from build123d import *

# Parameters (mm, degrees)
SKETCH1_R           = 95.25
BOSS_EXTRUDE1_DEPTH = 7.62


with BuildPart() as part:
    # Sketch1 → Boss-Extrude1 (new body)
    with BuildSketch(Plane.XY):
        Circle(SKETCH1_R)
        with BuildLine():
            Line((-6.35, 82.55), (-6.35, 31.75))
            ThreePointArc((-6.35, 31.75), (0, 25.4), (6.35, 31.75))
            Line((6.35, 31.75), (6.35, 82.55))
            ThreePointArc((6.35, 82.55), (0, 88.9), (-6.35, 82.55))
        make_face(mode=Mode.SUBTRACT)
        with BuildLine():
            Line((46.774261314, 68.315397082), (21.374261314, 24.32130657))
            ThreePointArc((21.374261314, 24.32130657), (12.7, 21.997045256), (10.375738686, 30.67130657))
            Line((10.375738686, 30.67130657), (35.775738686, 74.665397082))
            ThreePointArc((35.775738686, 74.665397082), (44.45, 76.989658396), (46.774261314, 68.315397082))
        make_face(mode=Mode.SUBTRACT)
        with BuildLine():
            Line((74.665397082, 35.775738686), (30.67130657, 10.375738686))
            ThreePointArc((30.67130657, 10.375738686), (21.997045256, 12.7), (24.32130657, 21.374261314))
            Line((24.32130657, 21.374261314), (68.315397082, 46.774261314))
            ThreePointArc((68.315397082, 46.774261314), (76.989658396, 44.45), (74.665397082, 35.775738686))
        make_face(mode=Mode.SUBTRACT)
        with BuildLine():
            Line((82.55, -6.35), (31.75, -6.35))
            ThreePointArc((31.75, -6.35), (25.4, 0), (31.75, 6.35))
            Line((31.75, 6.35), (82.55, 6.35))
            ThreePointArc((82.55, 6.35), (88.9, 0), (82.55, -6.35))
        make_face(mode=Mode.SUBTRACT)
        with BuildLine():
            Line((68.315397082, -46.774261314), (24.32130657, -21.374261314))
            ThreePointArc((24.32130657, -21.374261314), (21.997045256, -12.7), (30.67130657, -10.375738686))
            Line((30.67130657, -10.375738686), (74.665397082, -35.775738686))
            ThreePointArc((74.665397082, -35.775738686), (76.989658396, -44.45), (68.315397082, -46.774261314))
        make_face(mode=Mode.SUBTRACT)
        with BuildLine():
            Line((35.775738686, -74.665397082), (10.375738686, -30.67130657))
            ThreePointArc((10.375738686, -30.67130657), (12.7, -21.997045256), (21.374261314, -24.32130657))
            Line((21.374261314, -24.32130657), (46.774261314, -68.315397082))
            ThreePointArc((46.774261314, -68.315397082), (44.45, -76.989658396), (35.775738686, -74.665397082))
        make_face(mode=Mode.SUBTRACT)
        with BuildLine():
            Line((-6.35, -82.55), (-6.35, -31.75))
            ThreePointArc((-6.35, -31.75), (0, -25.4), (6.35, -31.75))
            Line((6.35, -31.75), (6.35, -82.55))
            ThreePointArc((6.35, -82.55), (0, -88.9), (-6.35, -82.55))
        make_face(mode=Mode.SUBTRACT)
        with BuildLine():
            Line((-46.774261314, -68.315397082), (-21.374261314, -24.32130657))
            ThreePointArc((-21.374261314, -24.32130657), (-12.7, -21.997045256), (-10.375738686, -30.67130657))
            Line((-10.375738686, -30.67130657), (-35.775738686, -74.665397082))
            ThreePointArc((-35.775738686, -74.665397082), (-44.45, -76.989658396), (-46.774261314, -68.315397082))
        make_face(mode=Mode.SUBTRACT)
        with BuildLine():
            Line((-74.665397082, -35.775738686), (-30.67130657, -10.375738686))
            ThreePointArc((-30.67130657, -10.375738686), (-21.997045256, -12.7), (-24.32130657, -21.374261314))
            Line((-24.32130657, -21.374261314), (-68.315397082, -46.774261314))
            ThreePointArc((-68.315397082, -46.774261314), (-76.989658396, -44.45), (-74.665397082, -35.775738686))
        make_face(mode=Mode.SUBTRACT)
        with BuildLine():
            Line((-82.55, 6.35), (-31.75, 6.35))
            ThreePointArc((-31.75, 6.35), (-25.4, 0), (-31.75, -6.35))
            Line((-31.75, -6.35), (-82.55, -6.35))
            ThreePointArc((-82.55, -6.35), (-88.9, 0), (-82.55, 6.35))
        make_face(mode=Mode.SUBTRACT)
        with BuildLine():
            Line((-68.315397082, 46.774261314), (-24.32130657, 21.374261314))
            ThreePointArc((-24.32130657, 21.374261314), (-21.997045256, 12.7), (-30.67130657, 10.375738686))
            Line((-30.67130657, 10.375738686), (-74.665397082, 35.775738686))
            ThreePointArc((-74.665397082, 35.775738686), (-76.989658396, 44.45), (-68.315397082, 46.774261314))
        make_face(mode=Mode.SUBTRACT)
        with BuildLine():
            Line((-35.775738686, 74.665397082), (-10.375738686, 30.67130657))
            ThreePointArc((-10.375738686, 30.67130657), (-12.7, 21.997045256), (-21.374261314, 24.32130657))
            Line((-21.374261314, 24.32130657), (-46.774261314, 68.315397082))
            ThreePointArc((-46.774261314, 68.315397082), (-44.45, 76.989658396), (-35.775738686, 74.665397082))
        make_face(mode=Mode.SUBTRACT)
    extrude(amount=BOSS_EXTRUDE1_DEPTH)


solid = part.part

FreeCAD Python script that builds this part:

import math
import FreeCAD as App
import Part
import Sketcher

V = App.Vector
Q = App.Units.Quantity

doc = App.newDocument("Part")
params = doc.addObject("Spreadsheet::Sheet", "Params")
for row, (alias, value) in enumerate([
    ("sketch1_diameter", "7.5 in"),
    ("sketch1_width", "2 in"),
    ("sketch1_radius", "0.25 in"),
    ("sketch1_length", "2 in"),
    ("pad1_length", "0.3 in"),
], start=1):
    params.set(f"A{row}", alias)
    params.set(f"B{row}", "=" + value)
    params.setAlias(f"B{row}", alias)

body = doc.addObject("PartDesign::Body", "Body")

sketch1 = body.newObject("Sketcher::SketchObject", "Sketch")
sketch1.AttachmentSupport = (doc.getObject("XY_Plane"), [""])
sketch1.MapMode = "FlatFace"
sketch1.addGeometry(Part.Circle(V(0, 0, 0), V(0, 0, 1), 95), False)
sketch1.addGeometry(Part.ArcOfCircle(Part.Circle(V(-41, -71, 0), V(0, 0, 1), 6), math.radians(150), math.radians(330)), False)
sketch1.addGeometry(Part.LineSegment(V(-47, -68, 0), V(-21, -24, 0)), False)
sketch1.addGeometry(Part.ArcOfCircle(Part.Circle(V(-16, -27, 0), V(0, 0, 1), 6), math.radians(-30), math.radians(150)), False)
sketch1.addGeometry(Part.LineSegment(V(-10, -31, 0), V(-36, -75, 0)), False)
sketch1.addGeometry(Part.ArcOfCircle(Part.Circle(V(-71, -41, 0), V(0, 0, 1), 6), math.radians(120), math.radians(300)), False)
sketch1.addGeometry(Part.LineSegment(V(-75, -36, 0), V(-31, -10, 0)), False)
sketch1.addGeometry(Part.ArcOfCircle(Part.Circle(V(-27, -16, 0), V(0, 0, 1), 6), math.radians(-60), math.radians(120)), False)
sketch1.addGeometry(Part.LineSegment(V(-24, -21, 0), V(-68, -47, 0)), False)
sketch1.addGeometry(Part.ArcOfCircle(Part.Circle(V(0, -83, 0), V(0, 0, 1), 6), math.radians(180), math.radians(360)), False)
sketch1.addGeometry(Part.LineSegment(V(-6, -83, 0), V(-6, -32, 0)), False)
sketch1.addGeometry(Part.ArcOfCircle(Part.Circle(V(0, -32, 0), V(0, 0, 1), 6), math.radians(0), math.radians(180)), False)
sketch1.addGeometry(Part.LineSegment(V(6, -32, 0), V(6, -83, 0)), False)
sketch1.addGeometry(Part.ArcOfCircle(Part.Circle(V(41, -71, 0), V(0, 0, 1), 6), math.radians(-150), math.radians(30)), False)
sketch1.addGeometry(Part.LineSegment(V(36, -75, 0), V(10, -31, 0)), False)
sketch1.addGeometry(Part.ArcOfCircle(Part.Circle(V(16, -27, 0), V(0, 0, 1), 6), math.radians(30), math.radians(210)), False)
sketch1.addGeometry(Part.LineSegment(V(21, -24, 0), V(47, -68, 0)), False)
sketch1.addGeometry(Part.ArcOfCircle(Part.Circle(V(71, -41, 0), V(0, 0, 1), 6), math.radians(-120), math.radians(60)), False)
sketch1.addGeometry(Part.LineSegment(V(68, -47, 0), V(24, -21, 0)), False)
sketch1.addGeometry(Part.ArcOfCircle(Part.Circle(V(27, -16, 0), V(0, 0, 1), 6), math.radians(60), math.radians(240)), False)
sketch1.addGeometry(Part.LineSegment(V(31, -10, 0), V(75, -36, 0)), False)
sketch1.addGeometry(Part.ArcOfCircle(Part.Circle(V(-83, 0, 0), V(0, 0, 1), 6), math.radians(90), math.radians(270)), False)
sketch1.addGeometry(Part.LineSegment(V(-83, 6, 0), V(-32, 6, 0)), False)
sketch1.addGeometry(Part.ArcOfCircle(Part.Circle(V(-32, 0, 0), V(0, 0, 1), 6), math.radians(-90), math.radians(90)), False)
sketch1.addGeometry(Part.LineSegment(V(-32, -6, 0), V(-83, -6, 0)), False)
sketch1.addGeometry(Part.ArcOfCircle(Part.Circle(V(-71, 41, 0), V(0, 0, 1), 6), math.radians(60), math.radians(240)), False)
sketch1.addGeometry(Part.LineSegment(V(-68, 47, 0), V(-24, 21, 0)), False)
sketch1.addGeometry(Part.ArcOfCircle(Part.Circle(V(-27, 16, 0), V(0, 0, 1), 6), math.radians(-120), math.radians(60)), False)
sketch1.addGeometry(Part.LineSegment(V(-31, 10, 0), V(-75, 36, 0)), False)
sketch1.addGeometry(Part.ArcOfCircle(Part.Circle(V(-41, 71, 0), V(0, 0, 1), 6), math.radians(30), math.radians(210)), False)
sketch1.addGeometry(Part.LineSegment(V(-36, 75, 0), V(-10, 31, 0)), False)
sketch1.addGeometry(Part.ArcOfCircle(Part.Circle(V(-16, 27, 0), V(0, 0, 1), 6), math.radians(-150), math.radians(30)), False)
sketch1.addGeometry(Part.LineSegment(V(-21, 24, 0), V(-47, 68, 0)), False)
sketch1.addGeometry(Part.ArcOfCircle(Part.Circle(V(83, 0, 0), V(0, 0, 1), 6), math.radians(-90), math.radians(90)), False)
sketch1.addGeometry(Part.LineSegment(V(83, -6, 0), V(32, -6, 0)), False)
sketch1.addGeometry(Part.ArcOfCircle(Part.Circle(V(32, 0, 0), V(0, 0, 1), 6), math.radians(90), math.radians(270)), False)
sketch1.addGeometry(Part.LineSegment(V(32, 6, 0), V(83, 6, 0)), False)
sketch1.addGeometry(Part.ArcOfCircle(Part.Circle(V(71, 41, 0), V(0, 0, 1), 6), math.radians(-60), math.radians(120)), False)
sketch1.addGeometry(Part.LineSegment(V(75, 36, 0), V(31, 10, 0)), False)
sketch1.addGeometry(Part.ArcOfCircle(Part.Circle(V(27, 16, 0), V(0, 0, 1), 6), math.radians(120), math.radians(300)), False)
sketch1.addGeometry(Part.LineSegment(V(24, 21, 0), V(68, 47, 0)), False)
sketch1.addGeometry(Part.LineSegment(V(-6, 32, 0), V(-6, 83, 0)), False)
sketch1.addGeometry(Part.ArcOfCircle(Part.Circle(V(0, 83, 0), V(0, 0, 1), 6), math.radians(0), math.radians(180)), False)
sketch1.addGeometry(Part.LineSegment(V(6, 83, 0), V(6, 32, 0)), False)
sketch1.addGeometry(Part.ArcOfCircle(Part.Circle(V(0, 32, 0), V(0, 0, 1), 6), math.radians(180), math.radians(360)), False)
sketch1.addGeometry(Part.ArcOfCircle(Part.Circle(V(41, 71, 0), V(0, 0, 1), 6), math.radians(-30), math.radians(150)), False)
sketch1.addGeometry(Part.LineSegment(V(47, 68, 0), V(21, 24, 0)), False)
sketch1.addGeometry(Part.ArcOfCircle(Part.Circle(V(16, 27, 0), V(0, 0, 1), 6), math.radians(150), math.radians(330)), False)
sketch1.addGeometry(Part.LineSegment(V(10, 31, 0), V(36, 75, 0)), False)
sketch1.addConstraint(Sketcher.Constraint("Tangent", 1, 1, 2, 1))
sketch1.addConstraint(Sketcher.Constraint("Tangent", 2, 2, 3, 2))
sketch1.addConstraint(Sketcher.Constraint("Tangent", 3, 1, 4, 1))
sketch1.addConstraint(Sketcher.Constraint("Tangent", 4, 2, 1, 2))
sketch1.addConstraint(Sketcher.Constraint("Tangent", 5, 1, 6, 1))
sketch1.addConstraint(Sketcher.Constraint("Tangent", 6, 2, 7, 2))
sketch1.addConstraint(Sketcher.Constraint("Tangent", 7, 1, 8, 1))
sketch1.addConstraint(Sketcher.Constraint("Tangent", 8, 2, 5, 2))
sketch1.addConstraint(Sketcher.Constraint("Tangent", 9, 1, 10, 1))
sketch1.addConstraint(Sketcher.Constraint("Tangent", 10, 2, 11, 2))
sketch1.addConstraint(Sketcher.Constraint("Tangent", 11, 1, 12, 1))
sketch1.addConstraint(Sketcher.Constraint("Tangent", 12, 2, 9, 2))
sketch1.addConstraint(Sketcher.Constraint("Tangent", 13, 1, 14, 1))
sketch1.addConstraint(Sketcher.Constraint("Tangent", 14, 2, 15, 2))
sketch1.addConstraint(Sketcher.Constraint("Tangent", 15, 1, 16, 1))
sketch1.addConstraint(Sketcher.Constraint("Tangent", 16, 2, 13, 2))
sketch1.addConstraint(Sketcher.Constraint("Tangent", 17, 1, 18, 1))
sketch1.addConstraint(Sketcher.Constraint("Tangent", 18, 2, 19, 2))
sketch1.addConstraint(Sketcher.Constraint("Tangent", 19, 1, 20, 1))
sketch1.addConstraint(Sketcher.Constraint("Tangent", 20, 2, 17, 2))
sketch1.addConstraint(Sketcher.Constraint("Tangent", 21, 1, 22, 1))
sketch1.addConstraint(Sketcher.Constraint("Tangent", 22, 2, 23, 2))
sketch1.addConstraint(Sketcher.Constraint("Tangent", 23, 1, 24, 1))
sketch1.addConstraint(Sketcher.Constraint("Tangent", 24, 2, 21, 2))
sketch1.addConstraint(Sketcher.Constraint("Tangent", 25, 1, 26, 1))
sketch1.addConstraint(Sketcher.Constraint("Tangent", 26, 2, 27, 2))
sketch1.addConstraint(Sketcher.Constraint("Tangent", 27, 1, 28, 1))
sketch1.addConstraint(Sketcher.Constraint("Tangent", 28, 2, 25, 2))
sketch1.addConstraint(Sketcher.Constraint("Tangent", 29, 1, 30, 1))
sketch1.addConstraint(Sketcher.Constraint("Tangent", 30, 2, 31, 2))
sketch1.addConstraint(Sketcher.Constraint("Tangent", 31, 1, 32, 1))
sketch1.addConstraint(Sketcher.Constraint("Tangent", 32, 2, 29, 2))
sketch1.addConstraint(Sketcher.Constraint("Tangent", 33, 1, 34, 1))
sketch1.addConstraint(Sketcher.Constraint("Tangent", 34, 2, 35, 2))
sketch1.addConstraint(Sketcher.Constraint("Tangent", 35, 1, 36, 1))
sketch1.addConstraint(Sketcher.Constraint("Tangent", 36, 2, 33, 2))
sketch1.addConstraint(Sketcher.Constraint("Tangent", 37, 1, 38, 1))
sketch1.addConstraint(Sketcher.Constraint("Tangent", 38, 2, 39, 2))
sketch1.addConstraint(Sketcher.Constraint("Tangent", 39, 1, 40, 1))
sketch1.addConstraint(Sketcher.Constraint("Tangent", 40, 2, 37, 2))
sketch1.addConstraint(Sketcher.Constraint("Tangent", 41, 2, 42, 2))
sketch1.addConstraint(Sketcher.Constraint("Tangent", 42, 1, 43, 1))
sketch1.addConstraint(Sketcher.Constraint("Tangent", 43, 2, 44, 2))
sketch1.addConstraint(Sketcher.Constraint("Tangent", 44, 1, 41, 1))
sketch1.addConstraint(Sketcher.Constraint("Tangent", 45, 1, 46, 1))
sketch1.addConstraint(Sketcher.Constraint("Tangent", 46, 2, 47, 2))
sketch1.addConstraint(Sketcher.Constraint("Tangent", 47, 1, 48, 1))
sketch1.addConstraint(Sketcher.Constraint("Tangent", 48, 2, 45, 2))
sketch1.addConstraint(Sketcher.Constraint("Vertical", 10))
sketch1.addConstraint(Sketcher.Constraint("Vertical", 12))
sketch1.addConstraint(Sketcher.Constraint("Horizontal", 22))
sketch1.addConstraint(Sketcher.Constraint("Horizontal", 24))
sketch1.addConstraint(Sketcher.Constraint("Horizontal", 34))
sketch1.addConstraint(Sketcher.Constraint("Horizontal", 36))
sketch1.addConstraint(Sketcher.Constraint("Vertical", 41))
sketch1.addConstraint(Sketcher.Constraint("Vertical", 43))
sketch1.addConstraint(Sketcher.Constraint("Coincident", 0, 3, -1, 1))
sketch1.addConstraint(Sketcher.Constraint("Equal", 1, 3))
sketch1.addConstraint(Sketcher.Constraint("Equal", 3, 5))
sketch1.addConstraint(Sketcher.Constraint("Equal", 5, 7))
sketch1.addConstraint(Sketcher.Constraint("Equal", 7, 9))
sketch1.addConstraint(Sketcher.Constraint("Equal", 11, 13))
sketch1.addConstraint(Sketcher.Constraint("Equal", 13, 15))
sketch1.addConstraint(Sketcher.Constraint("Equal", 15, 17))
sketch1.addConstraint(Sketcher.Constraint("Equal", 17, 19))
sketch1.addConstraint(Sketcher.Constraint("Equal", 19, 21))
sketch1.addConstraint(Sketcher.Constraint("Equal", 23, 25))
sketch1.addConstraint(Sketcher.Constraint("Equal", 25, 27))
sketch1.addConstraint(Sketcher.Constraint("Equal", 27, 29))
sketch1.addConstraint(Sketcher.Constraint("Equal", 29, 31))
sketch1.addConstraint(Sketcher.Constraint("Equal", 31, 33))
sketch1.addConstraint(Sketcher.Constraint("Equal", 35, 37))
sketch1.addConstraint(Sketcher.Constraint("Equal", 37, 39))
sketch1.addConstraint(Sketcher.Constraint("Equal", 39, 42))
sketch1.addConstraint(Sketcher.Constraint("Equal", 44, 45))
sketch1.addConstraint(Sketcher.Constraint("Equal", 45, 47))
sketch1.addConstraint(Sketcher.Constraint("Symmetric", 17, 3, 25, 3, -1, 1))
sketch1.addConstraint(Sketcher.Constraint("Symmetric", 19, 3, 27, 3, -1, 1))
sketch1.addConstraint(Sketcher.Constraint("Symmetric", 13, 3, 29, 3, -1, 1))
sketch1.addConstraint(Sketcher.Constraint("Symmetric", 15, 3, 31, 3, -1, 1))
sketch1.addConstraint(Sketcher.Constraint("Symmetric", 21, 3, 33, 3, -1, 1))
sketch1.addConstraint(Sketcher.Constraint("Symmetric", 5, 3, 37, 3, -1, 1))
sketch1.addConstraint(Sketcher.Constraint("Symmetric", 7, 3, 39, 3, -1, 1))
sketch1.addConstraint(Sketcher.Constraint("Symmetric", 9, 3, 42, 3, -1, 1))
sketch1.addConstraint(Sketcher.Constraint("Symmetric", 1, 3, 45, 3, -1, 1))
sketch1.addConstraint(Sketcher.Constraint("Symmetric", 3, 3, 47, 3, -1, 1))
sketch1.addConstraint(Sketcher.Constraint("Symmetric", 1, 3, 13, 3, -2))
sketch1.addConstraint(Sketcher.Constraint("Symmetric", 3, 3, 15, 3, -2))
sketch1.addConstraint(Sketcher.Constraint("Symmetric", 5, 3, 17, 3, -2))
sketch1.addConstraint(Sketcher.Constraint("Symmetric", 7, 3, 19, 3, -2))
sketch1.addConstraint(Sketcher.Constraint("Symmetric", 23, 3, 35, 3, -2))
sketch1.addConstraint(Sketcher.Constraint("Symmetric", 11, 3, 44, 3, -1))
sketch1.addConstraint(Sketcher.Constraint("Perpendicular", 8, 14))
sketch1.addConstraint(Sketcher.Constraint("Equal", 36, 10))
sketch1.addConstraint(Sketcher.Constraint("Equal", 4, 6))
sketch1.addConstraint(Sketcher.Constraint("Diameter", 0, Q("7.5 in")))
sketch1.addConstraint(Sketcher.Constraint("DistanceX", 22, 1, 22, 2, Q("2 in")))
sketch1.addConstraint(Sketcher.Constraint("Radius", 1, Q("0.25 in")))
sketch1.addConstraint(Sketcher.Constraint("Distance", 2, Q("2 in")))
sketch1.addConstraint(Sketcher.Constraint("Angle", 2, Q("60 deg")))
sketch1.addConstraint(Sketcher.Constraint("DistanceY", 9, 3, -1, 1, Q("3.25 in")))
sketch1.addConstraint(Sketcher.Constraint("DistanceX", 21, 3, -1, 1, Q("3.25 in")))
sketch1.addConstraint(Sketcher.Constraint("DistanceX", 1, 3, -1, 1, Q("1.625 in")))
sketch1.addConstraint(Sketcher.Constraint("DistanceY", 5, 3, -1, 1, Q("1.625 in")))
sketch1.addConstraint(Sketcher.Constraint("DistanceY", 1, 3, -1, 1, 71.490397))
sketch1.addConstraint(Sketcher.Constraint("DistanceX", 5, 3, -1, 1, 71.490397))
sketch1.setExpression("Constraints[95]", "Params.sketch1_diameter")
sketch1.setExpression("Constraints[96]", "Params.sketch1_width")
sketch1.setExpression("Constraints[97]", "Params.sketch1_radius")
sketch1.setExpression("Constraints[98]", "Params.sketch1_length")
pad1 = body.newObject("PartDesign::Pad", "Pad")
pad1.Profile = sketch1
pad1.setExpression("Length", "Params.pad1_length")

doc.recompute()
